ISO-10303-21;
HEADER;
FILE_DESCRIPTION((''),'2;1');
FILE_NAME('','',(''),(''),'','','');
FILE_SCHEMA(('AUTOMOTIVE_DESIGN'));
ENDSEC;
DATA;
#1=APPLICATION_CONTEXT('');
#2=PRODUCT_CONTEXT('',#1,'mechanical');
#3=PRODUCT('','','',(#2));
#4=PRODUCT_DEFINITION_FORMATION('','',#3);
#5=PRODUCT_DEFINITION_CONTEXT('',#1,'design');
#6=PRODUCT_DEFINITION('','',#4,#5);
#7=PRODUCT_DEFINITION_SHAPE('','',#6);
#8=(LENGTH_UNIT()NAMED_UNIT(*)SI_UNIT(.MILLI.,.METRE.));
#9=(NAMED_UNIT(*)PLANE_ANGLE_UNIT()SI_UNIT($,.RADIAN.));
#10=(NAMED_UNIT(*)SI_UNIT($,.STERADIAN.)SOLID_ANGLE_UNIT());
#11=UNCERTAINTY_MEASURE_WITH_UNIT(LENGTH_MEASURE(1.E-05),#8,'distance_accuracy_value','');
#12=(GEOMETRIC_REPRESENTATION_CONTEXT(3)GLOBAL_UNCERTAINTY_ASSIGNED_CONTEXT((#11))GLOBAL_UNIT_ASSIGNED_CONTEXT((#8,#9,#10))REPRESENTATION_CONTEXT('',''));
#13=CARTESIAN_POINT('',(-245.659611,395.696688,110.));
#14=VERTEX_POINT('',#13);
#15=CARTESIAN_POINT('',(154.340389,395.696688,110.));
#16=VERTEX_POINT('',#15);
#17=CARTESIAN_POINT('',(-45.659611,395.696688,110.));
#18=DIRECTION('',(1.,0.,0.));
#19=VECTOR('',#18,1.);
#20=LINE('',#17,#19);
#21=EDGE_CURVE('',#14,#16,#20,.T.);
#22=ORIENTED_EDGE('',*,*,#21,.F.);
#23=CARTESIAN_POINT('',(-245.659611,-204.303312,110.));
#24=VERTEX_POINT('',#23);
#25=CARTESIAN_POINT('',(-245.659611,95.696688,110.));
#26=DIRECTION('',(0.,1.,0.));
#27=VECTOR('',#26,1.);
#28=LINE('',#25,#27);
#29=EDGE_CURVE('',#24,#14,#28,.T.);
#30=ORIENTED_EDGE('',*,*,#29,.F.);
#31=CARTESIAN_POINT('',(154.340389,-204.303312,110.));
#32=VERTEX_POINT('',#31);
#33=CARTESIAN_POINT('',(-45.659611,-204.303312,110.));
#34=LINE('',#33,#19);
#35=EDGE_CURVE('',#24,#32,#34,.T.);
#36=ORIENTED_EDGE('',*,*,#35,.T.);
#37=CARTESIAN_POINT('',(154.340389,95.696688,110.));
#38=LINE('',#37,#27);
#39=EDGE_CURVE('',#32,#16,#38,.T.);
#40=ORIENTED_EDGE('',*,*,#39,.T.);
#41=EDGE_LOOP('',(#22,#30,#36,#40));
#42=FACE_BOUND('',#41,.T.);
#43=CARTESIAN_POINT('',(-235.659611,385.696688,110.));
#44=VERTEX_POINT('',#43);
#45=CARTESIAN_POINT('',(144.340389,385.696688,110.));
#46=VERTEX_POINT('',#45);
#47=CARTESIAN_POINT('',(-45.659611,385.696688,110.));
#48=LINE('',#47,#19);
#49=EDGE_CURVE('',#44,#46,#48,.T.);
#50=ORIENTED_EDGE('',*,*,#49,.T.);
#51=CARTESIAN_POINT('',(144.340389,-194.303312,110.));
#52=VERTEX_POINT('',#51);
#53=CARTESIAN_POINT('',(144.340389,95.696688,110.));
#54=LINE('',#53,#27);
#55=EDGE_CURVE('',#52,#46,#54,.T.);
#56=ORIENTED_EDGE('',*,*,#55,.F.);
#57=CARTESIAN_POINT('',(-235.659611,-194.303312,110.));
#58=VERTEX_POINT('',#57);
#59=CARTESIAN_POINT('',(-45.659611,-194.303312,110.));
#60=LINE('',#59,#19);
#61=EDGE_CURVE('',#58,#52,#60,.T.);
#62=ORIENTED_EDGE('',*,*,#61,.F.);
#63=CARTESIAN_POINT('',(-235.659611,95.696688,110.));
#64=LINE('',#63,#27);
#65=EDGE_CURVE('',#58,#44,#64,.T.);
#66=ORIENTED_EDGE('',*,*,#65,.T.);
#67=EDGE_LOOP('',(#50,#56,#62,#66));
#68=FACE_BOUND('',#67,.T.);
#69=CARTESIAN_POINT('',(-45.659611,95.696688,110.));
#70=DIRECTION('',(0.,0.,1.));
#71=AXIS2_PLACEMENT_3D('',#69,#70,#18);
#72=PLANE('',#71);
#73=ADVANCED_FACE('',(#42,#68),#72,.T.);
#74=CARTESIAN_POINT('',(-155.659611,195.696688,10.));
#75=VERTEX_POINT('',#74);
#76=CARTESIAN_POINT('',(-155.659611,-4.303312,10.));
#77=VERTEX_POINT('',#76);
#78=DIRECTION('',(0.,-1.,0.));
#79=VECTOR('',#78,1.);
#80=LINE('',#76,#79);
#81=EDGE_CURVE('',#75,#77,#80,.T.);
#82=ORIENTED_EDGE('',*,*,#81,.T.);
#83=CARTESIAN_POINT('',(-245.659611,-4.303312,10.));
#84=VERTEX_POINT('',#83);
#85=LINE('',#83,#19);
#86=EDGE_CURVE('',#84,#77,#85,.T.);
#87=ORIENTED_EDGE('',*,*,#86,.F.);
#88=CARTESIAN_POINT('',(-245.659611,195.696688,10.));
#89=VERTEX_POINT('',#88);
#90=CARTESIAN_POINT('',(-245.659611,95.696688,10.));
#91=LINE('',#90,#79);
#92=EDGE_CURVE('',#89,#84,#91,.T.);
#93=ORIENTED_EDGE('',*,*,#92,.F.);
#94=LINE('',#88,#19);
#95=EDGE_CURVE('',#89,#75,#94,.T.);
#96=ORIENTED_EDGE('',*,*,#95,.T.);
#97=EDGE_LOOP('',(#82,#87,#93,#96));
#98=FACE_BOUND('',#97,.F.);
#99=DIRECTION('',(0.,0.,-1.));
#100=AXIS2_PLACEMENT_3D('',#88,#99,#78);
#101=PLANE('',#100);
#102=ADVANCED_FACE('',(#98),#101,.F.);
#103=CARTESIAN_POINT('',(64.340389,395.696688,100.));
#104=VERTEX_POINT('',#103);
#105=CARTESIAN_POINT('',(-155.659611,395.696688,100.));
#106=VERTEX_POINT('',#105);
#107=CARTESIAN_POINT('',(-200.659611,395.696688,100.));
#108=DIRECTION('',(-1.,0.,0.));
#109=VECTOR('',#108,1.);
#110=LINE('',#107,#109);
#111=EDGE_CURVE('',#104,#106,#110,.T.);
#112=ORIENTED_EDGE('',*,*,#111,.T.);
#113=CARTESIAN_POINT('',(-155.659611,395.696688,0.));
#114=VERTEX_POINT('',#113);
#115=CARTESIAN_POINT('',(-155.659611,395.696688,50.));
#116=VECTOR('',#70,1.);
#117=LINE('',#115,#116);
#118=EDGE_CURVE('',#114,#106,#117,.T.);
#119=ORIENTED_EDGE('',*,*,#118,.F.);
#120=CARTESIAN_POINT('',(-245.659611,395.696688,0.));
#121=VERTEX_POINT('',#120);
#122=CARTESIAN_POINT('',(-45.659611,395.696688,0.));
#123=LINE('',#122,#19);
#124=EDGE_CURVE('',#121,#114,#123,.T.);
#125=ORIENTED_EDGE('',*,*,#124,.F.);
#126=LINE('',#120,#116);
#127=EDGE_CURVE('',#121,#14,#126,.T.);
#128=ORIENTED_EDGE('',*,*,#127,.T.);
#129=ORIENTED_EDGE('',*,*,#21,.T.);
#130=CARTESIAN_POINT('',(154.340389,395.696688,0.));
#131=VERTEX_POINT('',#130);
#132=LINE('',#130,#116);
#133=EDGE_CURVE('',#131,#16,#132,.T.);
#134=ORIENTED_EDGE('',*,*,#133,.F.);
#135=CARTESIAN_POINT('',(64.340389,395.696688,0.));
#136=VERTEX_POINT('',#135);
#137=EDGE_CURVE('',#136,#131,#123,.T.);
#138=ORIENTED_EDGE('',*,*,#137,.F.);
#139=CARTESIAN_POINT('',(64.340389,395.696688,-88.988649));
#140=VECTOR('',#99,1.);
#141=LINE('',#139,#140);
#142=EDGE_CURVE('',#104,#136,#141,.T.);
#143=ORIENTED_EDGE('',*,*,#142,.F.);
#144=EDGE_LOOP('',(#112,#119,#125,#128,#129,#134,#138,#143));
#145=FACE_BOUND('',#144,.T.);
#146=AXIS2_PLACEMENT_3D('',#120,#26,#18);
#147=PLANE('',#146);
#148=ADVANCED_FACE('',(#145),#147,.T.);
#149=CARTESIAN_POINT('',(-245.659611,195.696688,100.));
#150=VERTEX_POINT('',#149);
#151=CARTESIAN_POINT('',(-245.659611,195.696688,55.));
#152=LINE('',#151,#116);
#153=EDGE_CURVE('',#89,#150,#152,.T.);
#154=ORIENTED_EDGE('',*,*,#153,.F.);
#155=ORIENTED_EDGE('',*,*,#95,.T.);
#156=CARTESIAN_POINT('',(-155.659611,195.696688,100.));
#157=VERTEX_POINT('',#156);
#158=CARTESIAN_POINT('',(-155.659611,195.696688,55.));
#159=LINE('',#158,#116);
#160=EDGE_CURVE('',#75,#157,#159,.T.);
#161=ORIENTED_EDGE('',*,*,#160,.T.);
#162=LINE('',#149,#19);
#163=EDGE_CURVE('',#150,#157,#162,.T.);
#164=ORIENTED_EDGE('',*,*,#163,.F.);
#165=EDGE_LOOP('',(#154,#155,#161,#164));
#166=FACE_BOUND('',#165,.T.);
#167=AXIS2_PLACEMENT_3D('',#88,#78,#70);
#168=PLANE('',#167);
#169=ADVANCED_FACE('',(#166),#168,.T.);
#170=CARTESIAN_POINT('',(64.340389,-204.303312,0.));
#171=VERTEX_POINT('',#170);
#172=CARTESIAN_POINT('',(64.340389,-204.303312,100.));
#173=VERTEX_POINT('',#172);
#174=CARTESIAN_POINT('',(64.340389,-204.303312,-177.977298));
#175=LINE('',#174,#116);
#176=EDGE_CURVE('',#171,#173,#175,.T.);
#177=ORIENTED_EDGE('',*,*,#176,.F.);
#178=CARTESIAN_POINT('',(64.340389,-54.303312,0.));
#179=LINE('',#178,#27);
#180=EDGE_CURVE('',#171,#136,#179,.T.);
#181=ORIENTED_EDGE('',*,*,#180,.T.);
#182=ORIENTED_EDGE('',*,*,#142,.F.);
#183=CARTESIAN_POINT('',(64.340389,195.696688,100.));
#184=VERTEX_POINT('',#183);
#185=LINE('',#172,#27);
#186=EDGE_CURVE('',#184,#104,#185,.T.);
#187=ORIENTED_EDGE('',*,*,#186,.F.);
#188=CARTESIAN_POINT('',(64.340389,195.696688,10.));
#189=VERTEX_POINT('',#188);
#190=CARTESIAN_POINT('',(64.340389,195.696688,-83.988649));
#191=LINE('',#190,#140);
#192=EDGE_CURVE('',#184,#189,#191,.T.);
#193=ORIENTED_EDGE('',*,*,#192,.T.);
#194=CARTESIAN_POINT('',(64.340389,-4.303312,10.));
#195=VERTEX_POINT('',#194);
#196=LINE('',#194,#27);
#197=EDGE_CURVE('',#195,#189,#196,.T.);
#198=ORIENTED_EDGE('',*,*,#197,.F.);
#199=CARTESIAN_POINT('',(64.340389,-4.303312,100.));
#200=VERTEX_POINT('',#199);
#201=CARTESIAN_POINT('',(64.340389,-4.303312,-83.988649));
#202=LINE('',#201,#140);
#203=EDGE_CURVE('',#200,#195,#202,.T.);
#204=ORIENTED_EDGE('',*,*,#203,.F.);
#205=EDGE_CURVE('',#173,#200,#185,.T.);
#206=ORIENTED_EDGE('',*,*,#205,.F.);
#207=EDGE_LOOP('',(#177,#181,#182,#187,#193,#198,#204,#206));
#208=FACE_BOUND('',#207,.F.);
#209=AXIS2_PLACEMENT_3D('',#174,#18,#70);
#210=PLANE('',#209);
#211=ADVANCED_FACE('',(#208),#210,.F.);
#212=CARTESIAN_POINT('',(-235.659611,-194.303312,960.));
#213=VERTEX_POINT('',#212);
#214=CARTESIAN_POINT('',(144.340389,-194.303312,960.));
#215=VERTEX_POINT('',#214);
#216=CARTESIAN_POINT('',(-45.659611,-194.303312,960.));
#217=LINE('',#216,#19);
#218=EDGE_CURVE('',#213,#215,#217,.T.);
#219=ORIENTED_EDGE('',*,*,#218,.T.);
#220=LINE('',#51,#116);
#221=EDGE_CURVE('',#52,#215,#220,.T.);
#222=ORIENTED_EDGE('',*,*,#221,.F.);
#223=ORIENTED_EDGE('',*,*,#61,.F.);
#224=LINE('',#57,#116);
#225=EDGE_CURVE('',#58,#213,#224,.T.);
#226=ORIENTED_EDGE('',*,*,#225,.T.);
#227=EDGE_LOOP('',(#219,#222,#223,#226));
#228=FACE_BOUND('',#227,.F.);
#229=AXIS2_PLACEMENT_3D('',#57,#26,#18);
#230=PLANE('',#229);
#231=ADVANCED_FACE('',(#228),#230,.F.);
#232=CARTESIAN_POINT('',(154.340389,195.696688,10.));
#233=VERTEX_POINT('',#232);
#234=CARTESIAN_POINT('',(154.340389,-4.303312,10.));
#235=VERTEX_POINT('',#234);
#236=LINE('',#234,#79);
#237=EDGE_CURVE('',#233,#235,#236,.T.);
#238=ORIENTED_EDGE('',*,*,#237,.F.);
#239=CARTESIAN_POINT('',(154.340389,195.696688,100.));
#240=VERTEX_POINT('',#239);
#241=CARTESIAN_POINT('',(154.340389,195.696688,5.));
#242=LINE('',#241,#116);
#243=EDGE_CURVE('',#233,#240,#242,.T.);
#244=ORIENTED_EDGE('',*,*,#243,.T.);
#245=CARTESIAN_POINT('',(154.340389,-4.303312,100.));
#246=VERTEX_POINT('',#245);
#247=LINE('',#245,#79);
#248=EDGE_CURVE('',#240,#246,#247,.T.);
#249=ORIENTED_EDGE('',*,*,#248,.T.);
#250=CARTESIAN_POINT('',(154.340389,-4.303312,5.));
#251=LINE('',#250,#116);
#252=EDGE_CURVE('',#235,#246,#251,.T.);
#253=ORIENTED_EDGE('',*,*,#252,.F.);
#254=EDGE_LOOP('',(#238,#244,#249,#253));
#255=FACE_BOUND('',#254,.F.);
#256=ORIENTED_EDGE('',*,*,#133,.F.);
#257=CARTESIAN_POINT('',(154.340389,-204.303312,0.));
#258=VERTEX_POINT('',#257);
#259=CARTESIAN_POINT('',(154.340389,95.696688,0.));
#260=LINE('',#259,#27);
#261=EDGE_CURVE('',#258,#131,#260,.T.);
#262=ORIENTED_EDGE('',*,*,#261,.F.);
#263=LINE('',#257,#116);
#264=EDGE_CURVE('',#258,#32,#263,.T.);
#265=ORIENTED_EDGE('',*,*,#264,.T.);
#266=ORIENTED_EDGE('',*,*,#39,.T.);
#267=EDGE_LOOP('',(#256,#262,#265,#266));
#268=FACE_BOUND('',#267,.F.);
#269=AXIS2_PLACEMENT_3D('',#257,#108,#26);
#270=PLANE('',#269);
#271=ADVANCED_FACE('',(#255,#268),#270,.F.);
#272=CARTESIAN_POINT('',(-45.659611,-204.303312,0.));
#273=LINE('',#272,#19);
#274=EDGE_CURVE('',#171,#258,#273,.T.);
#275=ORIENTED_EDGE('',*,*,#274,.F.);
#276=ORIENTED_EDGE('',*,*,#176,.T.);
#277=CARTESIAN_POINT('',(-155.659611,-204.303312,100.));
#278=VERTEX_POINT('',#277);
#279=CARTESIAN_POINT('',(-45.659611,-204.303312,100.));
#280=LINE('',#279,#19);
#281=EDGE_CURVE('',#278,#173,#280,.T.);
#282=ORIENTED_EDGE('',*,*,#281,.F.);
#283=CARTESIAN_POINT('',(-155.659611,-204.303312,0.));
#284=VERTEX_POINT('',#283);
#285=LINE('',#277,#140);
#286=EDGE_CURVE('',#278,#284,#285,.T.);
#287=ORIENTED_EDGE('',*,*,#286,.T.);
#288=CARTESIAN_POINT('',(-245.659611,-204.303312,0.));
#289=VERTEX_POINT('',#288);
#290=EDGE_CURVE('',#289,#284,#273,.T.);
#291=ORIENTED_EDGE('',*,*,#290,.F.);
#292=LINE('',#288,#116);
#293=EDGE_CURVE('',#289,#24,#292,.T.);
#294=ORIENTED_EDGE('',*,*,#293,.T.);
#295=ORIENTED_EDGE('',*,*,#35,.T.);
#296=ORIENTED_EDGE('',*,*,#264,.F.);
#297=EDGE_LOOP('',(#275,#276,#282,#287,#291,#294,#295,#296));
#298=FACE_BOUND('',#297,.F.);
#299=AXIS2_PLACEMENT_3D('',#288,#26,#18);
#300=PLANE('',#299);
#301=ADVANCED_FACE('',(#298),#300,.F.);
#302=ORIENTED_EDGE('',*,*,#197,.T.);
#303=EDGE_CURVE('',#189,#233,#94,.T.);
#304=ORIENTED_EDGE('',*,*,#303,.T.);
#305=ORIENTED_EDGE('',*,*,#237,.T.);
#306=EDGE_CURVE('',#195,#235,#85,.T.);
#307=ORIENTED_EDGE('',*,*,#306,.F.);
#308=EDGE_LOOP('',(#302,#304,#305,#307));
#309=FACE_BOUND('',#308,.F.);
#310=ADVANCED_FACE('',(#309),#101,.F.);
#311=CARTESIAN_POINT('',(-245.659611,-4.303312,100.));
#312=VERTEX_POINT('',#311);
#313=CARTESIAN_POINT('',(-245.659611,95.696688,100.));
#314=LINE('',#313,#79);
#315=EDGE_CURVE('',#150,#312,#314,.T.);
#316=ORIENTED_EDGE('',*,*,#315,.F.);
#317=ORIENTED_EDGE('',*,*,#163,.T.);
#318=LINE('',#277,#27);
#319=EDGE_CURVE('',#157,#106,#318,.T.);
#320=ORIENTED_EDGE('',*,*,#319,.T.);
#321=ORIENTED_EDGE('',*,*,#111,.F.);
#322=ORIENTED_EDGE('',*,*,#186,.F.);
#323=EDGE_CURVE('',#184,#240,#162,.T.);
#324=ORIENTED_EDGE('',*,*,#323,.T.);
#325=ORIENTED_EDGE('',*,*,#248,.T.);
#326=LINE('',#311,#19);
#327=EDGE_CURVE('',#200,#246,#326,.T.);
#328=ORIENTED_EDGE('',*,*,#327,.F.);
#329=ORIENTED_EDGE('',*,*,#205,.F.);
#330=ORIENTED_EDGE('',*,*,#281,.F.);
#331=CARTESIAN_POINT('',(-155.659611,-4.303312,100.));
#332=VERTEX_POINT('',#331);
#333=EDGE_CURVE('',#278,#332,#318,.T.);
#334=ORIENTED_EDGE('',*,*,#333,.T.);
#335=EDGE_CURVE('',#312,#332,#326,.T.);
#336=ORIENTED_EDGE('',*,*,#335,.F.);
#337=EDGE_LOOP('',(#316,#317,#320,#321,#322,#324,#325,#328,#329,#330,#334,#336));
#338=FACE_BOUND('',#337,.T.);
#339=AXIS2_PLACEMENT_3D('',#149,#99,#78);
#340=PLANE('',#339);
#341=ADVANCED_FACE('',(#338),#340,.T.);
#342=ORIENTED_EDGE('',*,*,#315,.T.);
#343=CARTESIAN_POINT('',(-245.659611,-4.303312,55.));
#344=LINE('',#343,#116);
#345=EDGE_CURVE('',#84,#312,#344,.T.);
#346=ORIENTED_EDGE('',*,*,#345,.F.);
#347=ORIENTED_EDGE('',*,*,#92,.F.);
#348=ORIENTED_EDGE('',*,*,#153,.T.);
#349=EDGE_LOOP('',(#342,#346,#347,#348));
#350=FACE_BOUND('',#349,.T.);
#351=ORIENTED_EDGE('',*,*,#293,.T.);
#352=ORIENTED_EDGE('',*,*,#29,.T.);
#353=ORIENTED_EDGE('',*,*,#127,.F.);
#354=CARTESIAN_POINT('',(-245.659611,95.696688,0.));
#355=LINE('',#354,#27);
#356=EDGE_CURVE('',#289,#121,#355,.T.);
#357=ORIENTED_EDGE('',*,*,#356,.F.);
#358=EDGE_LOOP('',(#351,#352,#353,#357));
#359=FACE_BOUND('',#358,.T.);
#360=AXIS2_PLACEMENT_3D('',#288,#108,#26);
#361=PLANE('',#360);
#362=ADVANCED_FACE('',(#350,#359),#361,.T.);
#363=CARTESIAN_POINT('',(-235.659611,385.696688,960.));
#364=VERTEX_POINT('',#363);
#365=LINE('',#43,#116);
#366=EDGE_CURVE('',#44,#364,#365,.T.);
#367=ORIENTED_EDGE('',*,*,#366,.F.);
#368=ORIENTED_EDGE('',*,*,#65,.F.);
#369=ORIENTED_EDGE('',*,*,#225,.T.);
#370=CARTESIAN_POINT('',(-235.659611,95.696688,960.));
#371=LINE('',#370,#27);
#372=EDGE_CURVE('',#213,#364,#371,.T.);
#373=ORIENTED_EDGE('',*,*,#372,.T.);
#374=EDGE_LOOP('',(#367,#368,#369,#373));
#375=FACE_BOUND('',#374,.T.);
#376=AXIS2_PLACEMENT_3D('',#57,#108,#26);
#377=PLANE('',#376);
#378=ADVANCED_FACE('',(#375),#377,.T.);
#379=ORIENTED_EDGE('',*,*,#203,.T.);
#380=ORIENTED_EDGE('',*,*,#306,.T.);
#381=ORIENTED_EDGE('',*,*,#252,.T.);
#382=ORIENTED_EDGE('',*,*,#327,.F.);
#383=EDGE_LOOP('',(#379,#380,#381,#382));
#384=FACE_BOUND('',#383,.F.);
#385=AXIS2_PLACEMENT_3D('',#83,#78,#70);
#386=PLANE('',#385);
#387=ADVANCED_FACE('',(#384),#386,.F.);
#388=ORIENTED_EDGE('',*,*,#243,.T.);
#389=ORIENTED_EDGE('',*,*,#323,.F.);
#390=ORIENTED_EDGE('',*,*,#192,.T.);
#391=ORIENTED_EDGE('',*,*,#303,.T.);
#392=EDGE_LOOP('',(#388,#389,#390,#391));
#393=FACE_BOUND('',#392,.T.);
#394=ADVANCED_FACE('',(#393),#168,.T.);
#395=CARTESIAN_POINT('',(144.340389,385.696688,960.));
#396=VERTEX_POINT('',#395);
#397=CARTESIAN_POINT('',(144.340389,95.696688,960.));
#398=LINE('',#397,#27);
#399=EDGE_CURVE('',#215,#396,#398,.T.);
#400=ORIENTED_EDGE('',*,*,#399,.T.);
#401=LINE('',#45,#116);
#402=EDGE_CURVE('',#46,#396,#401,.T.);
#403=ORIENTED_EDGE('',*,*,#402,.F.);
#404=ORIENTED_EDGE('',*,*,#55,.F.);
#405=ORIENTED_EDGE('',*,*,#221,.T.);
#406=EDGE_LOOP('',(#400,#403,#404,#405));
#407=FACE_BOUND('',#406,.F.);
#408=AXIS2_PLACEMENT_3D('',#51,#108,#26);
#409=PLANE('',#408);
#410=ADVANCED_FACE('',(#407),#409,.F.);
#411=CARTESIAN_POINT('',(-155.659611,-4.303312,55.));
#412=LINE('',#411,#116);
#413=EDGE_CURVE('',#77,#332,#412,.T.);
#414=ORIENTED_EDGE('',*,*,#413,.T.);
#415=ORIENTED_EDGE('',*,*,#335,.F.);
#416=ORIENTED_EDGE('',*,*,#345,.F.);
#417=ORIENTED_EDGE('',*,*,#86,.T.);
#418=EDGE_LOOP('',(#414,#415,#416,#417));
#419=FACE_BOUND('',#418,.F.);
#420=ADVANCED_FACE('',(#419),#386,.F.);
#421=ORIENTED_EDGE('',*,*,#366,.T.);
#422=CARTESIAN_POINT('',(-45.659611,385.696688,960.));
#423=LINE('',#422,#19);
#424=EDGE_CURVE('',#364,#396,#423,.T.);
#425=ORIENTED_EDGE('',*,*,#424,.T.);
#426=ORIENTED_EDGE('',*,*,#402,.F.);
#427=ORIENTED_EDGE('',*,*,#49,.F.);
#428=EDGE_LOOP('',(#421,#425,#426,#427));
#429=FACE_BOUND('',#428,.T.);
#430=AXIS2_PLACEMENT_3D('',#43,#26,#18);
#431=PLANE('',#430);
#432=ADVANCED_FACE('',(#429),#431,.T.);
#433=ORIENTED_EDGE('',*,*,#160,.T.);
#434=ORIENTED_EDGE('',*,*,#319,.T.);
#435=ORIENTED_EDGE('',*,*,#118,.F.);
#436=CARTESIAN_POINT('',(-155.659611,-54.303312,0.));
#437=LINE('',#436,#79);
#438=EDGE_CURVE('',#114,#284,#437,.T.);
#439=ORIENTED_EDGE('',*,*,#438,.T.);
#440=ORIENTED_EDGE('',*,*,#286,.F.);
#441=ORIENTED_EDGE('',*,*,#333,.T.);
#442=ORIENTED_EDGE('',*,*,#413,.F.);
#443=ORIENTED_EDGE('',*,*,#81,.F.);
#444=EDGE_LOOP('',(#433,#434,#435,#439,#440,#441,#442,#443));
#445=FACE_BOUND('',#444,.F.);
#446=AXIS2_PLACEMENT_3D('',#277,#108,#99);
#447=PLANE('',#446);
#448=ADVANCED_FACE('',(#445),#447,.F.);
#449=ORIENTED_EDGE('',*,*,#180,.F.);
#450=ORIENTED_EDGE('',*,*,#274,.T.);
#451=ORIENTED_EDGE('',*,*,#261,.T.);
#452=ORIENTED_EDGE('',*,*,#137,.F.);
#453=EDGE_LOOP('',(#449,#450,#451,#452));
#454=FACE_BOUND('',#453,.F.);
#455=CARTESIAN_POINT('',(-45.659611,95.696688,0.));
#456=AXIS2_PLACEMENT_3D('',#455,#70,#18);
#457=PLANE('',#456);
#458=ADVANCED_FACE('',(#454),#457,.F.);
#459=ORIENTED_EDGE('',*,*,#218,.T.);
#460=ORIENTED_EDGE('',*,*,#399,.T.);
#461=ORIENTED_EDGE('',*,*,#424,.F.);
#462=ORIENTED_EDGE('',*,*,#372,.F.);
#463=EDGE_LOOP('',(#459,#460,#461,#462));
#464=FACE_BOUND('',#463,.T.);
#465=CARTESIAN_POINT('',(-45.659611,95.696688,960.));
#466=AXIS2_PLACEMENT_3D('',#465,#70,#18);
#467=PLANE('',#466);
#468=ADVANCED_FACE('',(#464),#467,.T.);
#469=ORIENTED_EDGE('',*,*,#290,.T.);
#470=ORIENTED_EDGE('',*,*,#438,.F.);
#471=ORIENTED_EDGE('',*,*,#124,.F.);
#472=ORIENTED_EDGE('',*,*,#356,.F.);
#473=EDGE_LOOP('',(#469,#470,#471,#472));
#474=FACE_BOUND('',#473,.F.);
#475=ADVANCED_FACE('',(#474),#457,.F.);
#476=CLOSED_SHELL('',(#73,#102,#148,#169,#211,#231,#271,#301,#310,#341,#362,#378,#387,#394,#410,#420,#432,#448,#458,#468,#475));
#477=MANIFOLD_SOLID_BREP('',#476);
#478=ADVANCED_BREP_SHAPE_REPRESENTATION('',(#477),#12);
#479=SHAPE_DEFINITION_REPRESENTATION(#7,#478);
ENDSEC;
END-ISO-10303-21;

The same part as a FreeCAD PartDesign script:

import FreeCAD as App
import Part
import Sketcher


def add_polygon(sketch, points):
    """Adds a closed chain of lines whose ends are joined by coincident constraints."""
    first, n = sketch.GeometryCount, len(points)
    for a, b in zip(points, points[1:] + points[:1]):
        sketch.addGeometry(Part.LineSegment(App.Vector(*a, 0), App.Vector(*b, 0)), False)
    for i in range(n):
        sketch.addConstraint(Sketcher.Constraint("Coincident", first + i, 2, first + (i + 1) % n, 1))

doc = App.newDocument("Part")
body = doc.addObject("PartDesign::Body", "Body")

# Sketch on XY plane
sketch1 = body.newObject("Sketcher::SketchObject", "Sketch")
sketch1.AttachmentSupport = (doc.getObject("XY_Plane"), [""])
sketch1.MapMode = "FlatFace"
add_polygon(sketch1, [(-246, 396), (-246, -204), (154, -204), (154, 396)])  # lines 0-3
sketch1.addConstraint([
    Sketcher.Constraint("Vertical", 0),
    Sketcher.Constraint("Horizontal", 1),
    Sketcher.Constraint("Vertical", 2),
    Sketcher.Constraint("Horizontal", 3),
    Sketcher.Constraint("DistanceX", 1, 1, 1, 2, 400.0),
    Sketcher.Constraint("DistanceY", 0, 2, 0, 1, 600.0),
    Sketcher.Constraint("DistanceX", 0, 2, -1, 1, 245.659611),
    Sketcher.Constraint("DistanceY", 0, 2, -1, 1, 204.303312),
])
pad1 = body.newObject("PartDesign::Pad", "Pad")
pad1.Profile = sketch1
pad1.Length = 110

# Sketch on XZ plane
sketch2 = body.newObject("Sketcher::SketchObject", "Sketch001")
sketch2.AttachmentSupport = (doc.getObject("XZ_Plane"), [""])
sketch2.MapMode = "FlatFace"
sketch2.AttachmentOffset = App.Placement(App.Vector(0, 0, 204.303312), App.Rotation())
add_polygon(sketch2, [(-156, -178), (64, -178), (64, 100), (-156, 100)])  # lines 0-3
sketch2.addConstraint([
    Sketcher.Constraint("Horizontal", 0),
    Sketcher.Constraint("Vertical", 1),
    Sketcher.Constraint("Horizontal", 2),
    Sketcher.Constraint("Vertical", 3),
    Sketcher.Constraint("DistanceX", 0, 1, 0, 2, 220.0),
    Sketcher.Constraint("DistanceY", -1, 1, 1, 2, 100.0),
    Sketcher.Constraint("DistanceY", 1, 1, 1, 2, 277.977298),
    Sketcher.Constraint("DistanceX", -1, 1, 0, 2, 64.340389),
])
pocket1 = body.newObject("PartDesign::Pocket", "Pocket")
pocket1.Profile = sketch2
pocket1.Type = "ThroughAll"

# Sketch on YZ plane
sketch3 = body.newObject("Sketcher::SketchObject", "Sketch002")
sketch3.AttachmentSupport = (doc.getObject("YZ_Plane"), [""])
sketch3.MapMode = "FlatFace"
sketch3.AttachmentOffset = App.Placement(App.Vector(0, 0, -245.659611), App.Rotation())
add_polygon(sketch3, [(196, 100), (196, 10), (-4, 10), (-4, 100)])  # lines 0-3
sketch3.addConstraint([
    Sketcher.Constraint("Vertical", 0),
    Sketcher.Constraint("Horizontal", 1),
    Sketcher.Constraint("Vertical", 2),
    Sketcher.Constraint("Horizontal", 3),
    Sketcher.Constraint("DistanceX", 1, 2, 1, 1, 200.0),
    Sketcher.Constraint("DistanceY", 0, 2, 0, 1, 90.0),
    Sketcher.Constraint("DistanceY", -1, 1, 0, 2, 10.0),
    Sketcher.Constraint("DistanceX", -1, 1, 0, 2, 195.696688),
])
pocket2 = body.newObject("PartDesign::Pocket", "Pocket001")
pocket2.Profile = sketch3
pocket2.Length = 401
pocket2.Reversed = True

# Sketch on XY plane
sketch4 = body.newObject("Sketcher::SketchObject", "Sketch003")
sketch4.AttachmentSupport = (doc.getObject("XY_Plane"), [""])
sketch4.MapMode = "FlatFace"
sketch4.AttachmentOffset = App.Placement(App.Vector(0, 0, 110), App.Rotation())
add_polygon(sketch4, [(-236, 386), (-236, -194), (144, -194), (144, 386)])  # lines 0-3
sketch4.addConstraint([
    Sketcher.Constraint("Vertical", 0),
    Sketcher.Constraint("Horizontal", 1),
    Sketcher.Constraint("Vertical", 2),
    Sketcher.Constraint("Horizontal", 3),
    Sketcher.Constraint("DistanceX", 1, 1, 1, 2, 380.0),
    Sketcher.Constraint("DistanceY", 0, 2, 0, 1, 580.0),
    Sketcher.Constraint("DistanceX", 0, 2, -1, 1, 235.659611),
    Sketcher.Constraint("DistanceY", 0, 2, -1, 1, 194.303312),
])
pad2 = body.newObject("PartDesign::Pad", "Pad001")
pad2.Profile = sketch4
pad2.Length = 850

doc.recompute()
